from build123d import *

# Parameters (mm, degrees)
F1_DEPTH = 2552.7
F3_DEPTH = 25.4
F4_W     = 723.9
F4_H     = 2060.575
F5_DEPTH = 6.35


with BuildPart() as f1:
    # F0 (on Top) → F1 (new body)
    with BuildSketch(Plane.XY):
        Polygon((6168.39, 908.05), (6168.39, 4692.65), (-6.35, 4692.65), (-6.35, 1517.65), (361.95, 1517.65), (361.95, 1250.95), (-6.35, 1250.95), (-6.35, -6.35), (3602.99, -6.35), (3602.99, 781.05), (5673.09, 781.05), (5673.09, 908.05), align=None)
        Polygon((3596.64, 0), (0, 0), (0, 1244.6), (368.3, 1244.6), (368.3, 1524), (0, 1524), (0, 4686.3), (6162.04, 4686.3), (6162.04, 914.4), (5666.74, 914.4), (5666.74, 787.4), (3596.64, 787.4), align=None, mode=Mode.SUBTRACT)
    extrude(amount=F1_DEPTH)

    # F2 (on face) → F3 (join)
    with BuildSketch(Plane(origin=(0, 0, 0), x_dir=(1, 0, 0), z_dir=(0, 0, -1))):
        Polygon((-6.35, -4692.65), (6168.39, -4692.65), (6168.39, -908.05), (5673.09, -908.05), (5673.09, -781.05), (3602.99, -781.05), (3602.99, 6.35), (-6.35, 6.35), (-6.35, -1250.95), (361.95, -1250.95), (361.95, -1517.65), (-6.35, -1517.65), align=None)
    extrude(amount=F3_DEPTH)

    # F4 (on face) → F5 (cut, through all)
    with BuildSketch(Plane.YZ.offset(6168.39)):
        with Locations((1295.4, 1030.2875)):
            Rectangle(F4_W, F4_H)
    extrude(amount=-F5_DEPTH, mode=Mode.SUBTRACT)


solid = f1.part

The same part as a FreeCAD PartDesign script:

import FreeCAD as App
import Part
import Sketcher
Q = App.Units.Quantity


def add_polygon(sketch, points):
    """Adds a closed chain of lines whose ends are joined by coincident constraints."""
    first, n = sketch.GeometryCount, len(points)
    for a, b in zip(points, points[1:] + points[:1]):
        sketch.addGeometry(Part.LineSegment(App.Vector(*a, 0), App.Vector(*b, 0)), False)
    for i in range(n):
        sketch.addConstraint(Sketcher.Constraint("Coincident", first + i, 2, first + (i + 1) % n, 1))

doc = App.newDocument("Part")
params = doc.addObject("Spreadsheet::Sheet", "Params")
for row, (alias, value) in enumerate([
    ("sketch1_height", "149 in"),
    ("sketch1_height2", "125 in"),
    ("sketch1_height3", "31 in"),
    ("sketch1_height4", "5 in"),
    ("sketch1_height5", "49 in"),
    ("pad1_length", "100.5 in"),
    ("sketch2_height", "149 in"),
    ("sketch2_height2", "5 in"),
    ("sketch2_height3", "31 in"),
    ("sketch2_height4", "125 in"),
    ("sketch2_width", "243.1 in"),
    ("pad2_length", "1 in"),
    ("sketch3_width", "28.5 in"),
    ("sketch3_height", "81.125 in"),
    ("pocket1_length", "0.25 in"),
], start=1):
    params.set(f"A{row}", alias)
    params.set(f"B{row}", "=" + value)
    params.setAlias(f"B{row}", alias)

body = doc.addObject("PartDesign::Body", "Body")

# Sketch on XY plane
sketch1 = doc.addObject("Sketcher::SketchObject", "Sketch")
body.addObject(sketch1)
sketch1.AttachmentSupport = (doc.XY_Plane, [""])
sketch1.MapMode = "FlatFace"
add_polygon(sketch1, [(6168.39, 908.05), (6168.39, 4692.65), (-6.35, 4692.65), (-6.35, 1517.65), (361.95, 1517.65), (361.95, 1250.95), (-6.35, 1250.95), (-6.35, -6.35), (3602.99, -6.35), (3602.99, 781.05), (5673.09, 781.05), (5673.09, 908.05)])  # lines 0-11
add_polygon(sketch1, [(3596.64, 787.4), (3596.64, 0), (0, 0), (0, 1244.6), (368.3, 1244.6), (368.3, 1524), (0, 1524), (0, 4686.3), (6162.04, 4686.3), (6162.04, 914.4), (5666.74, 914.4), (5666.74, 787.4)])  # lines 12-23
sketch1.addConstraint(Sketcher.Constraint("Vertical", 0))
sketch1.addConstraint(Sketcher.Constraint("Horizontal", 1))
sketch1.addConstraint(Sketcher.Constraint("Vertical", 2))
sketch1.addConstraint(Sketcher.Constraint("Horizontal", 3))
sketch1.addConstraint(Sketcher.Constraint("Vertical", 4))
sketch1.addConstraint(Sketcher.Constraint("Horizontal", 5))
sketch1.addConstraint(Sketcher.Constraint("Vertical", 6))
sketch1.addConstraint(Sketcher.Constraint("Horizontal", 7))
sketch1.addConstraint(Sketcher.Constraint("Vertical", 8))
sketch1.addConstraint(Sketcher.Constraint("Horizontal", 9))
sketch1.addConstraint(Sketcher.Constraint("Vertical", 10))
sketch1.addConstraint(Sketcher.Constraint("Horizontal", 11))
sketch1.addConstraint(Sketcher.Constraint("Vertical", 12))
sketch1.addConstraint(Sketcher.Constraint("Horizontal", 13))
sketch1.addConstraint(Sketcher.Constraint("Vertical", 14))
sketch1.addConstraint(Sketcher.Constraint("Horizontal", 15))
sketch1.addConstraint(Sketcher.Constraint("Vertical", 16))
sketch1.addConstraint(Sketcher.Constraint("Horizontal", 17))
sketch1.addConstraint(Sketcher.Constraint("Vertical", 18))
sketch1.addConstraint(Sketcher.Constraint("Horizontal", 19))
sketch1.addConstraint(Sketcher.Constraint("Vertical", 20))
sketch1.addConstraint(Sketcher.Constraint("Horizontal", 21))
sketch1.addConstraint(Sketcher.Constraint("Vertical", 22))
sketch1.addConstraint(Sketcher.Constraint("Horizontal", 23))
sketch1.addConstraint(Sketcher.Constraint("Coincident", 13, 2, -1, 1))
sketch1.addConstraint(Sketcher.Constraint("PointOnObject", 17, 2, -2))
sketch1.addConstraint(Sketcher.Constraint("Vertical", 2, 2, 5, 2))
sketch1.addConstraint(Sketcher.Constraint("Equal", 5, 15))
sketch1.addConstraint(Sketcher.Constraint("Equal", 11, 21))
sketch1.addConstraint(Sketcher.Constraint("Equal", 9, 23))
sketch1.addConstraint(Sketcher.Constraint("Equal", 8, 12))
sketch1.addConstraint(Sketcher.Constraint("Equal", 10, 22))
sketch1.addConstraint(Sketcher.Constraint("DistanceY", 0, 1, 0, 2, Q("149 in")))
sketch1.addConstraint(Sketcher.Constraint("DistanceY", 2, 2, 2, 1, Q("125 in")))
sketch1.addConstraint(Sketcher.Constraint("DistanceY", 8, 1, 8, 2, Q("31 in")))
sketch1.addConstraint(Sketcher.Constraint("DistanceY", 10, 1, 10, 2, Q("5 in")))
sketch1.addConstraint(Sketcher.Constraint("DistanceY", 14, 1, 14, 2, Q("49 in")))
sketch1.addConstraint(Sketcher.Constraint("DistanceY", 16, 1, 16, 2, Q("11 in")))
sketch1.addConstraint(Sketcher.Constraint("DistanceX", 1, 2, 1, 1, Q("243.1 in")))
sketch1.addConstraint(Sketcher.Constraint("DistanceX", 3, 1, 3, 2, Q("14.5 in")))
sketch1.addConstraint(Sketcher.Constraint("DistanceX", 7, 1, 7, 2, Q("142.1 in")))
sketch1.addConstraint(Sketcher.Constraint("DistanceX", 9, 1, 9, 2, Q("81.5 in")))
sketch1.addConstraint(Sketcher.Constraint("DistanceX", 13, 2, 13, 1, Q("141.6 in")))
sketch1.addConstraint(Sketcher.Constraint("DistanceY", 4, 2, 4, 1, Q("10.5 in")))
sketch1.addConstraint(Sketcher.Constraint("DistanceY", 18, 1, 18, 2, Q("124.5 in")))
sketch1.addConstraint(Sketcher.Constraint("DistanceX", -1, 1, 0, 2, Q("242.85 in")))
sketch1.addConstraint(Sketcher.Constraint("DistanceY", -1, 1, 0, 2, Q("184.75 in")))
sketch1.setExpression("Constraints[56]", "Params.sketch1_height")
sketch1.setExpression("Constraints[57]", "Params.sketch1_height2")
sketch1.setExpression("Constraints[58]", "Params.sketch1_height3")
sketch1.setExpression("Constraints[59]", "Params.sketch1_height4")
sketch1.setExpression("Constraints[60]", "Params.sketch1_height5")
pad1 = doc.addObject("PartDesign::Pad", "Pad")
body.addObject(pad1)
pad1.Profile = sketch1
pad1.setExpression("Length", "Params.pad1_length")

# Sketch on XY plane
sketch2 = doc.addObject("Sketcher::SketchObject", "Sketch001")
body.addObject(sketch2)
sketch2.AttachmentSupport = (doc.XY_Plane, [""])
sketch2.MapMode = "FlatFace"
add_polygon(sketch2, [(-6.35, 4692.65), (6168.39, 4692.65), (6168.39, 908.05), (5673.09, 908.05), (5673.09, 781.05), (3602.99, 781.05), (3602.99, -6.35), (-6.35, -6.35), (-6.35, 1250.95), (361.95, 1250.95), (361.95, 1517.65), (-6.35, 1517.65)])  # lines 0-11
sketch2.addConstraint(Sketcher.Constraint("Horizontal", 0))
sketch2.addConstraint(Sketcher.Constraint("Vertical", 1))
sketch2.addConstraint(Sketcher.Constraint("Horizontal", 2))
sketch2.addConstraint(Sketcher.Constraint("Vertical", 3))
sketch2.addConstraint(Sketcher.Constraint("Horizontal", 4))
sketch2.addConstraint(Sketcher.Constraint("Vertical", 5))
sketch2.addConstraint(Sketcher.Constraint("Horizontal", 6))
sketch2.addConstraint(Sketcher.Constraint("Vertical", 7))
sketch2.addConstraint(Sketcher.Constraint("Horizontal", 8))
sketch2.addConstraint(Sketcher.Constraint("Vertical", 9))
sketch2.addConstraint(Sketcher.Constraint("Horizontal", 10))
sketch2.addConstraint(Sketcher.Constraint("Vertical", 11))
sketch2.addConstraint(Sketcher.Constraint("Vertical", 7, 2, 10, 2))
sketch2.addConstraint(Sketcher.Constraint("DistanceY", 1, 2, 1, 1, Q("149 in")))
sketch2.addConstraint(Sketcher.Constraint("DistanceY", 3, 2, 3, 1, Q("5 in")))
sketch2.addConstraint(Sketcher.Constraint("DistanceY", 5, 2, 5, 1, Q("31 in")))
sketch2.addConstraint(Sketcher.Constraint("DistanceY", 11, 1, 11, 2, Q("125 in")))
sketch2.addConstraint(Sketcher.Constraint("DistanceX", 0, 1, 0, 2, Q("243.1 in")))
sketch2.addConstraint(Sketcher.Constraint("DistanceX", 2, 2, 2, 1, Q("19.5 in")))
sketch2.addConstraint(Sketcher.Constraint("DistanceX", 4, 2, 4, 1, Q("81.5 in")))
sketch2.addConstraint(Sketcher.Constraint("DistanceX", 8, 1, 8, 2, Q("14.5 in")))
sketch2.addConstraint(Sketcher.Constraint("DistanceY", 7, 1, 7, 2, Q("49.5 in")))
sketch2.addConstraint(Sketcher.Constraint("DistanceX", -1, 1, 0, 2, Q("242.85 in")))
sketch2.addConstraint(Sketcher.Constraint("DistanceY", -1, 1, 0, 2, Q("184.75 in")))
sketch2.setExpression("Constraints[25]", "Params.sketch2_height")
sketch2.setExpression("Constraints[26]", "Params.sketch2_height2")
sketch2.setExpression("Constraints[27]", "Params.sketch2_height3")
sketch2.setExpression("Constraints[28]", "Params.sketch2_height4")
sketch2.setExpression("Constraints[29]", "Params.sketch2_width")
pad2 = doc.addObject("PartDesign::Pad", "Pad001")
body.addObject(pad2)
pad2.Profile = sketch2
pad2.setExpression("Length", "Params.pad2_length")
pad2.Reversed = True

# Sketch on YZ plane
sketch3 = doc.addObject("Sketcher::SketchObject", "Sketch002")
body.addObject(sketch3)
sketch3.AttachmentSupport = (doc.YZ_Plane, [""])
sketch3.MapMode = "FlatFace"
sketch3.AttachmentOffset = App.Placement(App.Vector(0, 0, 242.85 * 25.4), App.Rotation())
add_polygon(sketch3, [(933.45, 2060.575), (933.45, 0), (1657.35, 0), (1657.35, 2060.575)])  # lines 0-3
sketch3.addConstraint(Sketcher.Constraint("Vertical", 0))
sketch3.addConstraint(Sketcher.Constraint("Horizontal", 1))
sketch3.addConstraint(Sketcher.Constraint("Vertical", 2))
sketch3.addConstraint(Sketcher.Constraint("Horizontal", 3))
sketch3.addConstraint(Sketcher.Constraint("PointOnObject", 0, 2, -1))
sketch3.addConstraint(Sketcher.Constraint("DistanceX", 1, 1, 1, 2, Q("28.5 in")))
sketch3.addConstraint(Sketcher.Constraint("DistanceY", 0, 2, 0, 1, Q("81.125 in")))
sketch3.addConstraint(Sketcher.Constraint("DistanceX", -1, 1, 0, 2, Q("36.75 in")))
sketch3.setExpression("Constraints[9]", "Params.sketch3_width")
sketch3.setExpression("Constraints[10]", "Params.sketch3_height")
pocket1 = doc.addObject("PartDesign::Pocket", "Pocket")
body.addObject(pocket1)
pocket1.Profile = sketch3
pocket1.setExpression("Length", "Params.pocket1_length")

doc.recompute()
